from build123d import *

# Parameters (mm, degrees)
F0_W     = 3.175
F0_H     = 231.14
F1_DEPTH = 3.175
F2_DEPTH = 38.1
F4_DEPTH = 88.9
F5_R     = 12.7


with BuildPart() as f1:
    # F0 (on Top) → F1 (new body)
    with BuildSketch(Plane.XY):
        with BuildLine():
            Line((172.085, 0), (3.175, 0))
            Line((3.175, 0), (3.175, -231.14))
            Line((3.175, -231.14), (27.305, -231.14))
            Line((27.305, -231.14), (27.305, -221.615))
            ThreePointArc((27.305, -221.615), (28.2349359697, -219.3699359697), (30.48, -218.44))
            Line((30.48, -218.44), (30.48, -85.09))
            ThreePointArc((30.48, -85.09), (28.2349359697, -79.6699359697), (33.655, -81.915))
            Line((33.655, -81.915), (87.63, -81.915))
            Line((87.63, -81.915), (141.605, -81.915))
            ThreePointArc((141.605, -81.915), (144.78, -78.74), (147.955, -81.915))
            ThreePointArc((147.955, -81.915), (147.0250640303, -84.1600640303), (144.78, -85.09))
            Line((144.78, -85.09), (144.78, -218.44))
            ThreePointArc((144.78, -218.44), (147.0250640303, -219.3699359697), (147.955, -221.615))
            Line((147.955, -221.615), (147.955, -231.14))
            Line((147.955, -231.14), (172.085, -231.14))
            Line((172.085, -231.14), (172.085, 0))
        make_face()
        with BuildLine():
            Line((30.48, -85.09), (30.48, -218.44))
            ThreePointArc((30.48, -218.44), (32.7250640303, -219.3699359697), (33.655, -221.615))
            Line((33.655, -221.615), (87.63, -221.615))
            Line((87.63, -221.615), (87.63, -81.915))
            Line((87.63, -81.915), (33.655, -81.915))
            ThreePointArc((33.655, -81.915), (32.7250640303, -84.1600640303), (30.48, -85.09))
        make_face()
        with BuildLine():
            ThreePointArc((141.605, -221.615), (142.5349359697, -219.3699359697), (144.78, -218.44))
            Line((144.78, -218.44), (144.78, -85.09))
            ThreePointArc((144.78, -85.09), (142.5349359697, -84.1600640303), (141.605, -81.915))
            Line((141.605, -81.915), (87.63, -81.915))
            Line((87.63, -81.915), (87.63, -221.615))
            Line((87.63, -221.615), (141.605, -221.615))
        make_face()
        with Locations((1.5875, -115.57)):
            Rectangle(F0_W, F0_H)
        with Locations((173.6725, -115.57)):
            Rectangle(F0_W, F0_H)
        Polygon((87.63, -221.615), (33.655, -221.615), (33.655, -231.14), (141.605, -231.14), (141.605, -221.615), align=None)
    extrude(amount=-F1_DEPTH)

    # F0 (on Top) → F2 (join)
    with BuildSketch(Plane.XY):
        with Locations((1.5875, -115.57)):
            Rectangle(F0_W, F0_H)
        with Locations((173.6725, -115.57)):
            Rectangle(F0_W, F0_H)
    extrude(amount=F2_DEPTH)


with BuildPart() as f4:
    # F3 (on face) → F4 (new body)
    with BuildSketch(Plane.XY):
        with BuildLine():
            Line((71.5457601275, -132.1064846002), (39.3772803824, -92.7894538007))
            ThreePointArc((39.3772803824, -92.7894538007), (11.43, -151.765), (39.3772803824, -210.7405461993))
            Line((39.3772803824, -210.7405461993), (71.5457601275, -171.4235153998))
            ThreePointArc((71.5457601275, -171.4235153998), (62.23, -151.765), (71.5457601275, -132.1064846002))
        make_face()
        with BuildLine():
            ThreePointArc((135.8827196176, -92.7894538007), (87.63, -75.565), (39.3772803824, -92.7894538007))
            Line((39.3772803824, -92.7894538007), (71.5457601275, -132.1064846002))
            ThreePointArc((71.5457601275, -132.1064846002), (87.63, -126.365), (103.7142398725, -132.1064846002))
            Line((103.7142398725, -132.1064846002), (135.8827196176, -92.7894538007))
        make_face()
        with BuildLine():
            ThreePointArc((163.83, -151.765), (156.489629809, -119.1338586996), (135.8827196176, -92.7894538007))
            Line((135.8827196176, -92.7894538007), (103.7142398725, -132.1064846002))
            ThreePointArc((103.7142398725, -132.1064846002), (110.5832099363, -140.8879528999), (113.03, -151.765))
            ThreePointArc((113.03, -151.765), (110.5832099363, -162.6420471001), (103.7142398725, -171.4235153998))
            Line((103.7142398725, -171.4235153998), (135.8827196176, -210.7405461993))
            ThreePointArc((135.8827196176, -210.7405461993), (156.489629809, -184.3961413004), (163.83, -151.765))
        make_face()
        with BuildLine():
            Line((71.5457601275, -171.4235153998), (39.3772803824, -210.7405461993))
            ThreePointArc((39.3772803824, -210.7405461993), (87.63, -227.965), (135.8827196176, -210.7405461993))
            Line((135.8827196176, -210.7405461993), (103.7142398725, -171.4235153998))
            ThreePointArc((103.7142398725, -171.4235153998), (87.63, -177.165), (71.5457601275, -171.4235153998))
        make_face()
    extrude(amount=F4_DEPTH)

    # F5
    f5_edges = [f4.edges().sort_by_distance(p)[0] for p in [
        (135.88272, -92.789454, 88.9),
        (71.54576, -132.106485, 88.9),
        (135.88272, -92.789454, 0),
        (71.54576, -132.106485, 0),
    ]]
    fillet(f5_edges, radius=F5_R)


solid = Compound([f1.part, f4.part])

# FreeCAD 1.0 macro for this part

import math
import FreeCAD as App
import Part
import Sketcher
Q = App.Units.Quantity


def edges_at(feature, points):
    """Names of the edges that pass closest to the given points."""
    edges = feature.Shape.Edges
    near = lambda p: min(range(len(edges)), key=lambda i: edges[i].distToShape(Part.Vertex(*p))[0])
    return sorted({f"Edge{near(p) + 1}" for p in points})


def add_polygon(sketch, points):
    """Adds a closed chain of lines whose ends are joined by coincident constraints."""
    first, n = sketch.GeometryCount, len(points)
    for a, b in zip(points, points[1:] + points[:1]):
        sketch.addGeometry(Part.LineSegment(App.Vector(*a, 0), App.Vector(*b, 0)), False)
    for i in range(n):
        sketch.addConstraint(Sketcher.Constraint("Coincident", first + i, 2, first + (i + 1) % n, 1))

doc = App.newDocument("Part")
body = doc.addObject("PartDesign::Body", "Body")

# Sketch on XY plane
sketch1 = body.newObject("Sketcher::SketchObject", "Sketch")
sketch1.AttachmentSupport = (doc.getObject("XY_Plane"), [""])
sketch1.MapMode = "FlatFace"
sketch1.addGeometry([
    Part.LineSegment(App.Vector(0, 0, 0), App.Vector(0, -231.1, 0)),  # 0
    Part.LineSegment(App.Vector(0, -231.1, 0), App.Vector(27.3, -231.1, 0)),  # 1
    Part.LineSegment(App.Vector(27.3, -231.1, 0), App.Vector(27.3, -221.6, 0)),  # 2
    Part.ArcOfCircle(Part.Circle(App.Vector(30.5, -221.6, 0), App.Vector(0, 0, 1), 3.2), math.radians(90), math.radians(180)),  # 3
    Part.ArcOfCircle(Part.Circle(App.Vector(30.5, -221.6, 0), App.Vector(0, 0, 1), 3.2), math.radians(0), math.radians(90)),  # 4
    Part.LineSegment(App.Vector(33.7, -221.6, 0), App.Vector(33.7, -231.1, 0)),  # 5
    Part.LineSegment(App.Vector(33.7, -231.1, 0), App.Vector(141.6, -231.1, 0)),  # 6
    Part.LineSegment(App.Vector(141.6, -231.1, 0), App.Vector(141.6, -221.6, 0)),  # 7
    Part.ArcOfCircle(Part.Circle(App.Vector(144.8, -221.6, 0), App.Vector(0, 0, 1), 3.2), math.radians(90), math.radians(180)),  # 8
    Part.ArcOfCircle(Part.Circle(App.Vector(144.8, -221.6, 0), App.Vector(0, 0, 1), 3.2), math.radians(0), math.radians(90)),  # 9
    Part.LineSegment(App.Vector(148, -221.6, 0), App.Vector(148, -231.1, 0)),  # 10
    Part.LineSegment(App.Vector(148, -231.1, 0), App.Vector(175.3, -231.1, 0)),  # 11
    Part.LineSegment(App.Vector(175.3, -231.1, 0), App.Vector(175.3, 0, 0)),  # 12
    Part.LineSegment(App.Vector(175.3, 0, 0), App.Vector(0, 0, 0)),  # 13
    Part.ArcOfCircle(Part.Circle(App.Vector(144.8, -81.9, 0), App.Vector(0, 0, 1), 3.2), math.radians(0), math.radians(180)),  # 14
    Part.ArcOfCircle(Part.Circle(App.Vector(144.8, -81.9, 0), App.Vector(0, 0, 1), 3.2), math.radians(-90), math.radians(0)),  # 15
    Part.ArcOfCircle(Part.Circle(App.Vector(144.8, -81.9, 0), App.Vector(0, 0, 1), 3.2), math.radians(180), math.radians(270)),  # 16
    Part.ArcOfCircle(Part.Circle(App.Vector(30.5, -81.9, 0), App.Vector(0, 0, 1), 3.2), math.radians(0), math.radians(270)),  # 17
    Part.ArcOfCircle(Part.Circle(App.Vector(30.5, -81.9, 0), App.Vector(0, 0, 1), 3.2), math.radians(-90), math.radians(0)),  # 18
], False)
sketch1.addConstraint([
    Sketcher.Constraint("Coincident", 0, 2, 1, 1),
    Sketcher.Constraint("Coincident", 1, 2, 2, 1),
    Sketcher.Constraint("Tangent", 2, 2, 3, 2),
    Sketcher.Constraint("Tangent", 3, 1, 4, 2),
    Sketcher.Constraint("Tangent", 4, 1, 5, 1),
    Sketcher.Constraint("Coincident", 5, 2, 6, 1),
    Sketcher.Constraint("Coincident", 6, 2, 7, 1),
    Sketcher.Constraint("Tangent", 7, 2, 8, 2),
    Sketcher.Constraint("Tangent", 8, 1, 9, 2),
    Sketcher.Constraint("Tangent", 9, 1, 10, 1),
    Sketcher.Constraint("Coincident", 10, 2, 11, 1),
    Sketcher.Constraint("Coincident", 11, 2, 12, 1),
    Sketcher.Constraint("Coincident", 12, 2, 13, 1),
    Sketcher.Constraint("Coincident", 13, 2, 0, 1),
    Sketcher.Constraint("Tangent", 14, 1, 15, 2),
    Sketcher.Constraint("Tangent", 15, 1, 16, 2),
    Sketcher.Constraint("Tangent", 16, 1, 14, 2),
    Sketcher.Constraint("Tangent", 17, 1, 18, 2),
    Sketcher.Constraint("Coincident", 18, 1, 17, 2),
    Sketcher.Constraint("Vertical", 0),
    Sketcher.Constraint("Horizontal", 1),
    Sketcher.Constraint("Vertical", 2),
    Sketcher.Constraint("Vertical", 5),
    Sketcher.Constraint("Horizontal", 6),
    Sketcher.Constraint("Vertical", 7),
    Sketcher.Constraint("Vertical", 10),
    Sketcher.Constraint("Horizontal", 11),
    Sketcher.Constraint("Vertical", 12),
    Sketcher.Constraint("Horizontal", 13),
    Sketcher.Constraint("Coincident", 13, 2, -1, 1),
    Sketcher.Constraint("Equal", 3, 4),
    Sketcher.Constraint("Equal", 4, 8),
    Sketcher.Constraint("Equal", 8, 9),
    Sketcher.Constraint("Equal", 9, 14),
    Sketcher.Constraint("Equal", 16, 17),
    Sketcher.Constraint("Horizontal", 4, 3, 8, 3),
    Sketcher.Constraint("Horizontal", 16, 3, 17, 3),
    Sketcher.Constraint("Horizontal", 1, 2, 5, 2),
    Sketcher.Constraint("Horizontal", 6, 2, 10, 2),
    Sketcher.Constraint("Horizontal", 18, 3, 14, 1),
    Sketcher.Constraint("Horizontal", 14, 1, 16, 1),
    Sketcher.Constraint("Horizontal", 16, 1, 17, 1),
    Sketcher.Constraint("Vertical", 9, 3, 14, 3),
    Sketcher.Constraint("Vertical", 4, 3, 17, 3),
    Sketcher.Constraint("Vertical", 18, 3, 3, 1),
    Sketcher.Constraint("Vertical", 16, 3, 8, 1),
    Sketcher.Constraint("Vertical", 8, 1, 15, 1),
    Sketcher.Constraint("Vertical", 3, 1, 18, 1),
    Sketcher.Constraint("Equal", 1, 11),
    Sketcher.Constraint("DistanceX", 13, 2, 13, 1, Q("6.9 in")),
    Sketcher.Constraint("DistanceY", 0, 2, 0, 1, Q("9.1 in")),
    Sketcher.Constraint("Radius", 3, Q("0.125 in")),
    Sketcher.Constraint("DistanceX", 6, 1, 6, 2, Q("4.25 in")),
    Sketcher.Constraint("DistanceY", 3, 1, -1, 1, Q("8.6 in")),
    Sketcher.Constraint("DistanceY", 8, 3, 14, 3, Q("5.5 in")),
])
pad1 = body.newObject("PartDesign::Pad", "Pad")
pad1.Profile = sketch1
pad1.Length = Q("0.125 in")
pad1.Reversed = True

# Sketch on XY plane
sketch2 = body.newObject("Sketcher::SketchObject", "Sketch001")
sketch2.AttachmentSupport = (doc.getObject("XY_Plane"), [""])
sketch2.MapMode = "FlatFace"
add_polygon(sketch2, [(0, 0), (0, -231.1), (3.2, -231.1), (3.2, 0)])  # lines 0-3
add_polygon(sketch2, [(172.1, 0), (172.1, -231.1), (175.3, -231.1), (175.3, 0)])  # lines 4-7
sketch2.addConstraint([
    Sketcher.Constraint("Vertical", 0),
    Sketcher.Constraint("Horizontal", 1),
    Sketcher.Constraint("Vertical", 2),
    Sketcher.Constraint("Horizontal", 3),
    Sketcher.Constraint("Vertical", 4),
    Sketcher.Constraint("Horizontal", 5),
    Sketcher.Constraint("Vertical", 6),
    Sketcher.Constraint("Horizontal", 7),
    Sketcher.Constraint("Coincident", 3, 2, -1, 1),
    Sketcher.Constraint("PointOnObject", 6, 2, -1),
    Sketcher.Constraint("Horizontal", 1, 2, 4, 2),
    Sketcher.Constraint("Equal", 3, 5),
    Sketcher.Constraint("DistanceY", 0, 2, 0, 1, Q("9.1 in")),
    Sketcher.Constraint("DistanceX", -1, 1, 5, 2, Q("6.9 in")),
    Sketcher.Constraint("DistanceX", 1, 1, 1, 2, Q("0.125 in")),
])
pad2 = body.newObject("PartDesign::Pad", "Pad001")
pad2.Profile = sketch2
pad2.Length = Q("1.5 in")
body2 = doc.addObject("PartDesign::Body", "Body001")

# Sketch on XY plane
sketch3 = body2.newObject("Sketcher::SketchObject", "Sketch002")
sketch3.AttachmentSupport = (doc.getObject("XY_Plane001"), [""])
sketch3.MapMode = "FlatFace"
sketch3.addGeometry([
    Part.Circle(App.Vector(88, -152, 0), App.Vector(0, 0, 1), 76),  # 0
    Part.ArcOfCircle(Part.Circle(App.Vector(88, -152, 0), App.Vector(0, 0, 1), 25), math.radians(129), math.radians(231)),  # 1
    Part.ArcOfCircle(Part.Circle(App.Vector(88, -152, 0), App.Vector(0, 0, 1), 25), math.radians(51), math.radians(129)),  # 2
    Part.ArcOfCircle(Part.Circle(App.Vector(88, -152, 0), App.Vector(0, 0, 1), 25), math.radians(0), math.radians(51)),  # 3
    Part.ArcOfCircle(Part.Circle(App.Vector(88, -152, 0), App.Vector(0, 0, 1), 25), math.radians(-51), math.radians(0)),  # 4
    Part.ArcOfCircle(Part.Circle(App.Vector(88, -152, 0), App.Vector(0, 0, 1), 25), math.radians(-129), math.radians(-51)),  # 5
], False)
sketch3.addConstraint([
    Sketcher.Constraint("Tangent", 1, 1, 2, 2),
    Sketcher.Constraint("Tangent", 2, 1, 3, 2),
    Sketcher.Constraint("Tangent", 3, 1, 4, 2),
    Sketcher.Constraint("Tangent", 4, 1, 5, 2),
    Sketcher.Constraint("Tangent", 5, 1, 1, 2),
    Sketcher.Constraint("Coincident", 1, 3, 0, 3),
    Sketcher.Constraint("Coincident", 3, 3, 0, 3),
    Sketcher.Constraint("Horizontal", 1, 1, 2, 1),
    Sketcher.Constraint("Horizontal", 5, 3, 3, 1),
    Sketcher.Constraint("Horizontal", 4, 1, 5, 1),
    Sketcher.Constraint("Vertical", 2, 1, 4, 1),
    Sketcher.Constraint("Diameter", 0, Q("6 in")),
    Sketcher.Constraint("Radius", 1, Q("1 in")),
    Sketcher.Constraint("DistanceX", -1, 1, 0, 3, Q("3.45 in")),
    Sketcher.Constraint("DistanceY", 0, 3, -1, 1, Q("5.975 in")),
    Sketcher.Constraint("DistanceX", -1, 1, 1, 1, Q("71.54576 mm")),
])
pad3 = body2.newObject("PartDesign::Pad", "Pad002")
pad3.Profile = sketch3
pad3.Length = Q("3.5 in")
doc.recompute()

fillet = body2.newObject("PartDesign::Fillet", "Fillet")
fillet.Base = (pad3, edges_at(pad3, [
    (39.377, -210.741, 88.9),
    (62.23, -151.765, 88.9),
    (39.377, -210.741, 0),
    (62.23, -151.765, 0),
]))
fillet.Radius = Q("0.5 in")

doc.recompute()
